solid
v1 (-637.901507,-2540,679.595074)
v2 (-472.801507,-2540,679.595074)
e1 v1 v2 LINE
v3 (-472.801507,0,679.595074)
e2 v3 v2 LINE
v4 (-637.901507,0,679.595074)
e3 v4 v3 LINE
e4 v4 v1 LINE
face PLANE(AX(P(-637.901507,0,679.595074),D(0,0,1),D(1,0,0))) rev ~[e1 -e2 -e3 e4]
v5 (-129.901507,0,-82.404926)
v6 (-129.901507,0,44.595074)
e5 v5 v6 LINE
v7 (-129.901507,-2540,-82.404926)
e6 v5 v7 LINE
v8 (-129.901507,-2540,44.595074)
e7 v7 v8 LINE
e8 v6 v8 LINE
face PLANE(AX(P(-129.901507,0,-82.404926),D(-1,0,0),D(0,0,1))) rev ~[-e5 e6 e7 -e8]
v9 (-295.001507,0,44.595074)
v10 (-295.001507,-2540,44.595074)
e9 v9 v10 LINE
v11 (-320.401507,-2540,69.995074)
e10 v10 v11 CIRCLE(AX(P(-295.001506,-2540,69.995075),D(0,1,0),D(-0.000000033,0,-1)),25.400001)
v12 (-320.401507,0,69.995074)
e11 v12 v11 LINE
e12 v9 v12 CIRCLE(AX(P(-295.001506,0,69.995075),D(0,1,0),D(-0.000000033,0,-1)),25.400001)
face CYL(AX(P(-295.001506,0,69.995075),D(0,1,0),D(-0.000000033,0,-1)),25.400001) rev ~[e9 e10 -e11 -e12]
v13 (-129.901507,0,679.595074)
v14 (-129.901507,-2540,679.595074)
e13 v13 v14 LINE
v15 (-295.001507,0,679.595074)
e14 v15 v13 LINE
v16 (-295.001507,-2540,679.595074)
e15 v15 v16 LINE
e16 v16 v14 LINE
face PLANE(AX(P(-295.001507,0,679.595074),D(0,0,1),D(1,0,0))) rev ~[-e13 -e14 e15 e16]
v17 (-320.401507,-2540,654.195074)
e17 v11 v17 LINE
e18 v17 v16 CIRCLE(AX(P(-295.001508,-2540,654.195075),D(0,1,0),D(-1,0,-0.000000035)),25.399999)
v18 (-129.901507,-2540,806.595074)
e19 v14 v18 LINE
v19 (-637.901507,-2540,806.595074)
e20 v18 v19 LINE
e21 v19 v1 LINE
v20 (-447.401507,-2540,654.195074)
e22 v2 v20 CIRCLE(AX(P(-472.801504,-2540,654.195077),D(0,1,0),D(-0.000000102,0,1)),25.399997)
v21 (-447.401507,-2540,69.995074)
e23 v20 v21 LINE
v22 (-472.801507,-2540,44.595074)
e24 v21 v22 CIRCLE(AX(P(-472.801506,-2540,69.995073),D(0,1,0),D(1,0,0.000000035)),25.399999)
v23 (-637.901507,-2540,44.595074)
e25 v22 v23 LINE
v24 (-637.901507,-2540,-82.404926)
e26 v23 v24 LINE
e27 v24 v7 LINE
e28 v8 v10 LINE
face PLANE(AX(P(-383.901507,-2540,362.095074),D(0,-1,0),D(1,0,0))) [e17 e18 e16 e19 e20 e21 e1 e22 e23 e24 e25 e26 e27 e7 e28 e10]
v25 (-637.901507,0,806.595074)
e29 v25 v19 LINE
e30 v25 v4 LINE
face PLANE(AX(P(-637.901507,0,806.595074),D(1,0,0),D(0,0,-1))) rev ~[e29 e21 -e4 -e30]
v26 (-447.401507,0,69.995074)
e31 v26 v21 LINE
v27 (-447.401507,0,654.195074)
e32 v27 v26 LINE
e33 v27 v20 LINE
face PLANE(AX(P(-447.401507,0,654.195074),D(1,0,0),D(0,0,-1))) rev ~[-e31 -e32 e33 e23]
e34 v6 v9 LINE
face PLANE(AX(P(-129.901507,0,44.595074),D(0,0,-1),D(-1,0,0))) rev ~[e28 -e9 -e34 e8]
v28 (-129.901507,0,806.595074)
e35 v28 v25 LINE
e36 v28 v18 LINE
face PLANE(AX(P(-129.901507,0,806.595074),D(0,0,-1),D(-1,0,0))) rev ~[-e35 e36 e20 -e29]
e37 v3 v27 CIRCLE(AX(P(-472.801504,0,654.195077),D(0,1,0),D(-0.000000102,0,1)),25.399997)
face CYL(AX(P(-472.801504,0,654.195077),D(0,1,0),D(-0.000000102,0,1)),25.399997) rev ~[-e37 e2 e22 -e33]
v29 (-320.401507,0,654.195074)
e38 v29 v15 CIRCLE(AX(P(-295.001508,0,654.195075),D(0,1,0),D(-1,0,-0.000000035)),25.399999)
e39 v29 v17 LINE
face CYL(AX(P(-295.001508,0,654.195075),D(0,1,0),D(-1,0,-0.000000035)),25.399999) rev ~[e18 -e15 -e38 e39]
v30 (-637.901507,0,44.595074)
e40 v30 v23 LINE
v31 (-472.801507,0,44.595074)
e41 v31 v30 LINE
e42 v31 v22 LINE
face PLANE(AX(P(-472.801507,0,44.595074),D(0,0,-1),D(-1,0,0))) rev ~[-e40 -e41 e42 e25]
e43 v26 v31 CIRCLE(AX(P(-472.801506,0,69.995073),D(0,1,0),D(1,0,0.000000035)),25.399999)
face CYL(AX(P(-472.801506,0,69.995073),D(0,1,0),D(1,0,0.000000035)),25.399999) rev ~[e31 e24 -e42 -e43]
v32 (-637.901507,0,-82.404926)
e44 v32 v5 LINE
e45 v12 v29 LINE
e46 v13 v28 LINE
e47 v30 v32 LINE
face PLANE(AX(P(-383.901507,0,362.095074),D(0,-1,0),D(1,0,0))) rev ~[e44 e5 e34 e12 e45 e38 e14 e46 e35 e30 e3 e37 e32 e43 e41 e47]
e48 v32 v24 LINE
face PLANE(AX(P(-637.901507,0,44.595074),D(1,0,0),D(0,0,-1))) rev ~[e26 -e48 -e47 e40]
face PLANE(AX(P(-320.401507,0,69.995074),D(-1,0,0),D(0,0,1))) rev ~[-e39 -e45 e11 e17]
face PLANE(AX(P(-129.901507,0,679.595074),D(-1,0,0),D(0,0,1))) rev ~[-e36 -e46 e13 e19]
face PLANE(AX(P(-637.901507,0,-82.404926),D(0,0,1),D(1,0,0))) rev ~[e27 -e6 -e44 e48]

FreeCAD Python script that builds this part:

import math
import FreeCAD as App
import Part
import Sketcher

V = App.Vector
Q = App.Units.Quantity

doc = App.newDocument("Part")
body = doc.addObject("PartDesign::Body", "Body")

# Sketch on XZ plane
sketch1 = doc.addObject("Sketcher::SketchObject", "Sketch")
body.addObject(sketch1)
sketch1.AttachmentSupport = (doc.XZ_Plane, [""])
sketch1.MapMode = "FlatFace"
sketch1.addGeometry([
    Part.LineSegment(V(-637.901507, -82.404926, 0), V(-129.901507, -82.404926, 0)),  # 0
    Part.LineSegment(V(-129.901507, -82.404926, 0), V(-129.901507, 44.595074, 0)),  # 1
    Part.LineSegment(V(-129.901507, 44.595074, 0), V(-295.001507, 44.595074, 0)),  # 2
    Part.ArcOfCircle(Part.Circle(V(-295.001506, 69.995075, 0), V(0, 0, 1), 25.400001), math.radians(-179.999998), math.radians(-90.000002)),  # 3
    Part.LineSegment(V(-320.401507, 69.995074, 0), V(-320.401507, 654.195074, 0)),  # 4
    Part.ArcOfCircle(Part.Circle(V(-295.001508, 654.195075, 0), V(0, 0, 1), 25.399999), math.radians(89.999998), math.radians(180.000002)),  # 5
    Part.LineSegment(V(-295.001507, 679.595074, 0), V(-129.901507, 679.595074, 0)),  # 6
    Part.LineSegment(V(-129.901507, 679.595074, 0), V(-129.901507, 806.595074, 0)),  # 7
    Part.LineSegment(V(-129.901507, 806.595074, 0), V(-637.901507, 806.595074, 0)),  # 8
    Part.LineSegment(V(-637.901507, 806.595074, 0), V(-637.901507, 679.595074, 0)),  # 9
    Part.LineSegment(V(-637.901507, 679.595074, 0), V(-472.801507, 679.595074, 0)),  # 10
    Part.ArcOfCircle(Part.Circle(V(-472.801504, 654.195077, 0), V(0, 0, 1), 25.399997), math.radians(-0.000006), math.radians(90.000006)),  # 11
    Part.LineSegment(V(-447.401507, 654.195074, 0), V(-447.401507, 69.995074, 0)),  # 12
    Part.ArcOfCircle(Part.Circle(V(-472.801506, 69.995073, 0), V(0, 0, 1), 25.399999), math.radians(-90.000002), math.radians(0.000002)),  # 13
    Part.LineSegment(V(-472.801507, 44.595074, 0), V(-637.901507, 44.595074, 0)),  # 14
    Part.LineSegment(V(-637.901507, 44.595074, 0), V(-637.901507, -82.404926, 0)),  # 15
], False)
sketch1.addConstraint([
    Sketcher.Constraint("Coincident", 0, 2, 1, 1),
    Sketcher.Constraint("Coincident", 1, 2, 2, 1),
    Sketcher.Constraint("Tangent", 2, 2, 3, 2),
    Sketcher.Constraint("Tangent", 3, 1, 4, 1),
    Sketcher.Constraint("Tangent", 4, 2, 5, 2),
    Sketcher.Constraint("Tangent", 5, 1, 6, 1),
    Sketcher.Constraint("Coincident", 6, 2, 7, 1),
    Sketcher.Constraint("Coincident", 7, 2, 8, 1),
    Sketcher.Constraint("Coincident", 8, 2, 9, 1),
    Sketcher.Constraint("Coincident", 9, 2, 10, 1),
    Sketcher.Constraint("Tangent", 10, 2, 11, 2),
    Sketcher.Constraint("Tangent", 11, 1, 12, 1),
    Sketcher.Constraint("Tangent", 12, 2, 13, 2),
    Sketcher.Constraint("Tangent", 13, 1, 14, 1),
    Sketcher.Constraint("Coincident", 14, 2, 15, 1),
    Sketcher.Constraint("Coincident", 15, 2, 0, 1),
    Sketcher.Constraint("Horizontal", 0),
    Sketcher.Constraint("Vertical", 1),
    Sketcher.Constraint("Horizontal", 2),
    Sketcher.Constraint("Vertical", 4),
    Sketcher.Constraint("Horizontal", 6),
    Sketcher.Constraint("Vertical", 7),
    Sketcher.Constraint("Horizontal", 8),
    Sketcher.Constraint("Vertical", 9),
    Sketcher.Constraint("Horizontal", 10),
    Sketcher.Constraint("Vertical", 12),
    Sketcher.Constraint("Horizontal", 14),
    Sketcher.Constraint("Vertical", 15),
    Sketcher.Constraint("Equal", 3, 5),
    Sketcher.Constraint("Equal", 5, 11),
    Sketcher.Constraint("Equal", 11, 13),
    Sketcher.Constraint("Horizontal", 5, 3, 11, 3),
    Sketcher.Constraint("Horizontal", 3, 3, 13, 3),
    Sketcher.Constraint("Vertical", 1, 2, 6, 2),
    Sketcher.Constraint("Vertical", 9, 2, 14, 2),
    Sketcher.Constraint("Equal", 6, 10),
    Sketcher.Constraint("Equal", 1, 7),
    Sketcher.Constraint("Radius", 3, Q("1 in")),
    Sketcher.Constraint("DistanceX", 0, 1, 0, 2, Q("20 in")),
    Sketcher.Constraint("DistanceY", 1, 1, 1, 2, Q("5 in")),
    Sketcher.Constraint("DistanceY", 4, 1, 4, 2, Q("23 in")),
    Sketcher.Constraint("DistanceX", 2, 2, 2, 1, Q("6.5 in")),
    Sketcher.Constraint("DistanceX", 3, 3, -1, 1, Q("295.001506 mm")),
    Sketcher.Constraint("DistanceY", -1, 1, 3, 3, Q("69.995075 mm")),
])
pad1 = doc.addObject("PartDesign::Pad", "Pad")
body.addObject(pad1)
pad1.Profile = sketch1
pad1.Length = Q("100 in")

doc.recompute()
